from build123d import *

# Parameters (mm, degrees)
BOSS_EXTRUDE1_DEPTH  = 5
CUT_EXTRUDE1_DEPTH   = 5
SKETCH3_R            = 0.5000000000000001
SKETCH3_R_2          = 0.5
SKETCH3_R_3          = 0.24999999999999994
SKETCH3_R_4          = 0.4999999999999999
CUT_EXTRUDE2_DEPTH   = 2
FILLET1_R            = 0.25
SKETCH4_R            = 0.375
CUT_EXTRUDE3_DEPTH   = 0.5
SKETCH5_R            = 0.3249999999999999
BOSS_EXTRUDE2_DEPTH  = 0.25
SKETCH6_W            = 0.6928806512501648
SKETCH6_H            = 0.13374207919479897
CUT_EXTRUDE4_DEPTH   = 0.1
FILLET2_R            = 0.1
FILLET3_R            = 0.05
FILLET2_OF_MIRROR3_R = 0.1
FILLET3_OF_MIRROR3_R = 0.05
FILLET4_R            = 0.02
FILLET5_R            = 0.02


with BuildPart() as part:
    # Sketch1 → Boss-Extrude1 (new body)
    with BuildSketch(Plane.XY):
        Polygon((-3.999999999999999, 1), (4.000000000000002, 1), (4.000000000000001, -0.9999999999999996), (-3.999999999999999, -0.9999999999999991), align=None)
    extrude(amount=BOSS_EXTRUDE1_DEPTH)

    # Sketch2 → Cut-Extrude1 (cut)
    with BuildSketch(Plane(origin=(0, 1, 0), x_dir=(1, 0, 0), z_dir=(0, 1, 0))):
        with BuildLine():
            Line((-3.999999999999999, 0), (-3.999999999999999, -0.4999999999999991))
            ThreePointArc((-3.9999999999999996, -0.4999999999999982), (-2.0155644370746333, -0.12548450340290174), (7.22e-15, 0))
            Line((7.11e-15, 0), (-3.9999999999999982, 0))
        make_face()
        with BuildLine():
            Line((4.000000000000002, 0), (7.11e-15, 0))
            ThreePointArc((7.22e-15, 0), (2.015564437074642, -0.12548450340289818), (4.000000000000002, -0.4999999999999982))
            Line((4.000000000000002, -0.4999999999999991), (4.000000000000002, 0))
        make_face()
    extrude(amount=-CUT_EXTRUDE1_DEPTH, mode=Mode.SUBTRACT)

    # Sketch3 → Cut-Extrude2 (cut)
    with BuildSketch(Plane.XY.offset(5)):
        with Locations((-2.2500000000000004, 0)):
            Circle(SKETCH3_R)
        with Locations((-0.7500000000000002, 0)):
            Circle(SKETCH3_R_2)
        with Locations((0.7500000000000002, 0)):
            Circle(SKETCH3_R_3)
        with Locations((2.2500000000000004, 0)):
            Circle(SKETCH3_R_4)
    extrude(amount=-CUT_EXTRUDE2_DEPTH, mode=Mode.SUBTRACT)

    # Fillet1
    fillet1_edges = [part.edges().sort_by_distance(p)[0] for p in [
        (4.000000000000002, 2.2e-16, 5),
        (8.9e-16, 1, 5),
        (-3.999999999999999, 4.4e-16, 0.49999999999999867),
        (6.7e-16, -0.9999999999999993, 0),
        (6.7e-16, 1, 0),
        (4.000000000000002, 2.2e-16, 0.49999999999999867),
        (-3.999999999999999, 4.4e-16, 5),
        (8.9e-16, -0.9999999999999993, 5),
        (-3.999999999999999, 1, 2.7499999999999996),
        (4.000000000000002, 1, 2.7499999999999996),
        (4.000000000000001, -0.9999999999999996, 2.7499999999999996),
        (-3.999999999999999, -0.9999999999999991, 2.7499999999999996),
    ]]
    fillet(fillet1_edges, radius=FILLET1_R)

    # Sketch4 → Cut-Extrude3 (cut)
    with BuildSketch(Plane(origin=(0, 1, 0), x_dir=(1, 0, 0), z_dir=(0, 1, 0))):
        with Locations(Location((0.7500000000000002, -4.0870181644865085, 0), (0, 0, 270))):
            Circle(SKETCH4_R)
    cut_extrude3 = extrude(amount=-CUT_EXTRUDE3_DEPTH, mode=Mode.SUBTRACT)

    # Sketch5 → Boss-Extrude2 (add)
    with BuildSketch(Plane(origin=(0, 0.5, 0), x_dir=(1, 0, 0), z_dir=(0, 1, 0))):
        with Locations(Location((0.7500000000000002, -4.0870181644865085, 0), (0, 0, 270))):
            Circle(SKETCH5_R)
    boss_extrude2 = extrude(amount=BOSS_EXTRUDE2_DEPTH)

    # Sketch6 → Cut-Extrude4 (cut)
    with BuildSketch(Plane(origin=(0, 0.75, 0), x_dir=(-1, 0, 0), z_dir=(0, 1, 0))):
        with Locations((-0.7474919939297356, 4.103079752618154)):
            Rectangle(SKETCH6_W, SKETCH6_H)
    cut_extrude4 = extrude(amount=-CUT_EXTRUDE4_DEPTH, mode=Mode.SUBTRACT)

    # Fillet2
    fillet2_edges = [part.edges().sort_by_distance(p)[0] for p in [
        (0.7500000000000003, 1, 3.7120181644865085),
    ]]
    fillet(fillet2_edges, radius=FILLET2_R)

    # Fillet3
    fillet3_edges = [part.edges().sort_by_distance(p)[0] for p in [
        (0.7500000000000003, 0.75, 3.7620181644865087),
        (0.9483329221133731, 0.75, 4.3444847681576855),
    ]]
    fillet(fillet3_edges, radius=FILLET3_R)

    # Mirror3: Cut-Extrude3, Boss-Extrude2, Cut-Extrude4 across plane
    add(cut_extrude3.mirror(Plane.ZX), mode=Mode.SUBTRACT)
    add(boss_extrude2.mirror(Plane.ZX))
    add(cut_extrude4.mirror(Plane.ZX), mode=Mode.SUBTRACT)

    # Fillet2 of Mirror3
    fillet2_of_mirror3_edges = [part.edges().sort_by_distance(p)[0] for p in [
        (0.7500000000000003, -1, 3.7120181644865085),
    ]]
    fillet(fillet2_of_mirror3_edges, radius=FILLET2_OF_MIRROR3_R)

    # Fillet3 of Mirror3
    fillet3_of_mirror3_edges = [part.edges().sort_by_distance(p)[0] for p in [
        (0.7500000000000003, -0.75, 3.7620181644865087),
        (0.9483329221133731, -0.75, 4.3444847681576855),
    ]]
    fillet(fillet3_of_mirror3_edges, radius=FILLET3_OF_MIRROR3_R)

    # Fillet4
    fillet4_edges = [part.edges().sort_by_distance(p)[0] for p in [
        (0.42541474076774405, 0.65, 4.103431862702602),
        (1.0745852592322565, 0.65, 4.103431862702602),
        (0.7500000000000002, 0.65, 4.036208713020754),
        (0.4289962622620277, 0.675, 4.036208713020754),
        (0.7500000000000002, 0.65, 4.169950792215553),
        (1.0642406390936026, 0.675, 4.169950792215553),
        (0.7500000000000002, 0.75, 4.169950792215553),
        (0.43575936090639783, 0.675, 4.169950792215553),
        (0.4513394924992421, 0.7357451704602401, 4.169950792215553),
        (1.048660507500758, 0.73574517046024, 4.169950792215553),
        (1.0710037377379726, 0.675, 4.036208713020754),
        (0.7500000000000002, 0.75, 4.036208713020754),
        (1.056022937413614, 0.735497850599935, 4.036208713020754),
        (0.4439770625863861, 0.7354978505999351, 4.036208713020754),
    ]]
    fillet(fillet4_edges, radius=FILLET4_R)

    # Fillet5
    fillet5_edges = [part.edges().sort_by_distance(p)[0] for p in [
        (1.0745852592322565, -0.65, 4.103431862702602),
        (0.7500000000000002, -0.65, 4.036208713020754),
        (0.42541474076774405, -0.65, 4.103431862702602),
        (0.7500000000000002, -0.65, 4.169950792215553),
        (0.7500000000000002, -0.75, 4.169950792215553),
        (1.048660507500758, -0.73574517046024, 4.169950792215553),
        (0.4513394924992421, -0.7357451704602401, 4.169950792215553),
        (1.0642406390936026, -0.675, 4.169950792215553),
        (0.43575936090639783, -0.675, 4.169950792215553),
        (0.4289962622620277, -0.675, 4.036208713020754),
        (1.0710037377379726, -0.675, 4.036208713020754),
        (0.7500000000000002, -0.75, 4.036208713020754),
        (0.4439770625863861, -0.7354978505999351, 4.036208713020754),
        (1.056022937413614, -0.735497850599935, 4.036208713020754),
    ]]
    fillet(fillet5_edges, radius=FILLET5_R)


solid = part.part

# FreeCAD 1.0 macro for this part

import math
import FreeCAD as App
import Part
import Sketcher
from FreeCAD import Vector


def edges_at(feature, points):
    """Names of the edges that pass closest to the given points."""
    edges = feature.Shape.Edges
    near = lambda p: min(range(len(edges)), key=lambda i: edges[i].distToShape(Part.Vertex(*p))[0])
    return sorted({f"Edge{near(p) + 1}" for p in points})

doc = App.newDocument("Part")
body = doc.addObject("PartDesign::Body", "Body")

# Sketch on XY plane
sketch1 = body.newObject("Sketcher::SketchObject", "Sketch")
sketch1.AttachmentSupport = (doc.getObject("XY_Plane"), [""])
sketch1.MapMode = "FlatFace"
sketch1.addGeometry([
    Part.LineSegment(Vector(4, 1, 0), Vector(-4, 1, 0)),
    Part.LineSegment(Vector(-4, 1, 0), Vector(-4, -1, 0)),
    Part.LineSegment(Vector(-4, -1, 0), Vector(4, -1, 0)),
    Part.LineSegment(Vector(4, -1, 0), Vector(4, 1, 0)),
], False)
sketch1.addConstraint([
    Sketcher.Constraint("Coincident", 0, 2, 1, 1),
    Sketcher.Constraint("Coincident", 1, 2, 2, 1),
    Sketcher.Constraint("Coincident", 2, 2, 3, 1),
    Sketcher.Constraint("Coincident", 3, 2, 0, 1),
    Sketcher.Constraint("Horizontal", 0),
    Sketcher.Constraint("Vertical", 1),
    Sketcher.Constraint("Horizontal", 2),
    Sketcher.Constraint("Vertical", 3),
    Sketcher.Constraint("Symmetric", 0, 2, 2, 2, -1, 1),
    Sketcher.Constraint("DistanceX", 0, 2, 0, 1, 8.0),
    Sketcher.Constraint("DistanceY", 1, 2, 1, 1, 2.0),
])
pad1 = body.newObject("PartDesign::Pad", "Pad")
pad1.Profile = sketch1
pad1.Length = 5

# Sketch on XZ plane
sketch2 = body.newObject("Sketcher::SketchObject", "Sketch001")
sketch2.AttachmentSupport = (doc.getObject("XZ_Plane"), [""])
sketch2.MapMode = "FlatFace"
sketch2.AttachmentOffset = App.Placement(Vector(0, 0, -1), App.Rotation())
sketch2.addGeometry([
    Part.LineSegment(Vector(-4, 0, 0), Vector(-4, 0.5, 0)),  # 0
    Part.ArcOfCircle(Part.Circle(Vector(0, 16.2, 0), Vector(0, 0, 1), 16.2), math.radians(-104.25), math.radians(-90)),  # 1
    Part.LineSegment(Vector(0, 0, 0), Vector(-4, 0, 0)),  # 2
    Part.LineSegment(Vector(4, 0, 0), Vector(0, 0, 0)),  # 3
    Part.ArcOfCircle(Part.Circle(Vector(0, 16.2, 0), Vector(0, 0, 1), 16.2), math.radians(-90), math.radians(-75.75)),  # 4
    Part.LineSegment(Vector(4, 0.5, 0), Vector(4, 0, 0)),  # 5
], False)
sketch2.addConstraint([
    Sketcher.Constraint("Coincident", 0, 2, 1, 1),
    Sketcher.Constraint("Tangent", 1, 2, 2, 1),
    Sketcher.Constraint("Coincident", 2, 2, 0, 1),
    Sketcher.Constraint("Tangent", 3, 2, 4, 1),
    Sketcher.Constraint("Coincident", 4, 2, 5, 1),
    Sketcher.Constraint("Coincident", 5, 2, 3, 1),
    Sketcher.Constraint("Vertical", 0),
    Sketcher.Constraint("Horizontal", 2),
    Sketcher.Constraint("Horizontal", 3),
    Sketcher.Constraint("Vertical", 5),
    Sketcher.Constraint("Coincident", 1, 2, -1, 1),
    Sketcher.Constraint("Coincident", 3, 2, -1, 1),
    Sketcher.Constraint("Equal", 1, 4),
    Sketcher.Constraint("Horizontal", 0, 2, 4, 2),
    Sketcher.Constraint("DistanceX", 2, 2, 2, 1, 4.0),
    Sketcher.Constraint("Radius", 1, 16.25),
])
pocket1 = body.newObject("PartDesign::Pocket", "Pocket")
pocket1.Profile = sketch2
pocket1.Length = 5
pocket1.Reversed = True

# Sketch on XY plane
sketch3 = body.newObject("Sketcher::SketchObject", "Sketch002")
sketch3.AttachmentSupport = (doc.getObject("XY_Plane"), [""])
sketch3.MapMode = "FlatFace"
sketch3.AttachmentOffset = App.Placement(Vector(0, 0, 5), App.Rotation())
sketch3.addGeometry([
    Part.Circle(Vector(-2.25, 0, 0), Vector(0, 0, 1), 0.5),
    Part.Circle(Vector(-0.75, 0, 0), Vector(0, 0, 1), 0.5),
    Part.Circle(Vector(0.75, 0, 0), Vector(0, 0, 1), 0.25),
    Part.Circle(Vector(2.25, 0, 0), Vector(0, 0, 1), 0.5),
], False)
sketch3.addConstraint([
    Sketcher.Constraint("Equal", 0, 1),
    Sketcher.Constraint("Equal", 1, 3),
    Sketcher.Constraint("Symmetric", 1, 3, 2, 3, -1, 1),
    Sketcher.Constraint("Symmetric", 0, 3, 3, 3, -1, 1),
    Sketcher.Constraint("PointOnObject", 0, 3, -1),
    Sketcher.Constraint("PointOnObject", 1, 3, -1),
    Sketcher.Constraint("Diameter", 0, 1.0),
    Sketcher.Constraint("Diameter", 2, 0.5),
    Sketcher.Constraint("DistanceX", 0, 3, 2, 3, 3.0),
    Sketcher.Constraint("DistanceX", 0, 3, 1, 3, 1.5),
])
pocket2 = body.newObject("PartDesign::Pocket", "Pocket001")
pocket2.Profile = sketch3
pocket2.Length = 2
doc.recompute()

fillet = body.newObject("PartDesign::Fillet", "Fillet")
fillet.Base = (pocket2, edges_at(pocket2, [
    (4, 0, 5),
    (0, 1, 5),
    (-4, 0, 0.5),
    (0, -1, 0),
    (0, 1, 0),
    (4, 0, 0.5),
    (-4, 0, 5),
    (0, -1, 5),
    (-4, 1, 2.75),
    (4, 1, 2.75),
    (4, -1, 2.75),
    (-4, -1, 2.75),
]))
fillet.Radius = 0.25

# Sketch on XZ plane
sketch4 = body.newObject("Sketcher::SketchObject", "Sketch003")
sketch4.AttachmentSupport = (doc.getObject("XZ_Plane"), [""])
sketch4.MapMode = "FlatFace"
sketch4.AttachmentOffset = App.Placement(Vector(0, 0, -1), App.Rotation())
sketch4.addGeometry(Part.Circle(Vector(0.75, 4.09, 0), Vector(0, 0, 1), 0.38), False)
sketch4.addConstraint([
    Sketcher.Constraint("Diameter", 0, 0.75),
    Sketcher.Constraint("DistanceX", -1, 1, 0, 3, 0.75),
    Sketcher.Constraint("DistanceY", -1, 1, 0, 3, 4.087018),
])
pocket3 = body.newObject("PartDesign::Pocket", "Pocket002")
pocket3.Profile = sketch4
pocket3.Length = 0.5
pocket3.Reversed = True

# Sketch on XZ plane
sketch5 = body.newObject("Sketcher::SketchObject", "Sketch004")
sketch5.AttachmentSupport = (doc.getObject("XZ_Plane"), [""])
sketch5.MapMode = "FlatFace"
sketch5.AttachmentOffset = App.Placement(Vector(0, 0, -0.5), App.Rotation())
sketch5.addGeometry(Part.Circle(Vector(0.75, 4.09, 0), Vector(0, 0, 1), 0.33), False)
sketch5.addConstraint([
    Sketcher.Constraint("Diameter", 0, 0.65),
    Sketcher.Constraint("DistanceX", -1, 1, 0, 3, 0.75),
    Sketcher.Constraint("DistanceY", -1, 1, 0, 3, 4.087018),
])
pad2 = body.newObject("PartDesign::Pad", "Pad001")
pad2.Profile = sketch5
pad2.Length = 0.25
pad2.Reversed = True

# Sketch on XZ plane
sketch6 = body.newObject("Sketcher::SketchObject", "Sketch005")
sketch6.AttachmentSupport = (doc.getObject("XZ_Plane"), [""])
sketch6.MapMode = "FlatFace"
sketch6.AttachmentOffset = App.Placement(Vector(0, 0, -0.75), App.Rotation())
sketch6.addGeometry([
    Part.LineSegment(Vector(1.09, 4.17, 0), Vector(1.09, 4.04, 0)),
    Part.LineSegment(Vector(1.09, 4.04, 0), Vector(0.4, 4.04, 0)),
    Part.LineSegment(Vector(0.4, 4.04, 0), Vector(0.4, 4.17, 0)),
    Part.LineSegment(Vector(0.4, 4.17, 0), Vector(1.09, 4.17, 0)),
], False)
sketch6.addConstraint([
    Sketcher.Constraint("Coincident", 0, 2, 1, 1),
    Sketcher.Constraint("Coincident", 1, 2, 2, 1),
    Sketcher.Constraint("Coincident", 2, 2, 3, 1),
    Sketcher.Constraint("Coincident", 3, 2, 0, 1),
    Sketcher.Constraint("Vertical", 0),
    Sketcher.Constraint("Horizontal", 1),
    Sketcher.Constraint("Vertical", 2),
    Sketcher.Constraint("Horizontal", 3),
    Sketcher.Constraint("DistanceX", 1, 2, 1, 1, 0.692881),
    Sketcher.Constraint("DistanceY", 0, 2, 0, 1, 0.133742),
    Sketcher.Constraint("DistanceY", -1, 1, 0, 2, 4.036209),
    Sketcher.Constraint("DistanceX", -1, 1, 1, 2, 0.401052),
])
pocket4 = body.newObject("PartDesign::Pocket", "Pocket003")
pocket4.Profile = sketch6
pocket4.Length = 0.1
pocket4.Reversed = True
doc.recompute()

fillet2 = body.newObject("PartDesign::Fillet", "Fillet001")
fillet2.Base = (pocket4, edges_at(pocket4, [(0.75, 1, 3.712)]))
fillet2.Radius = 0.1
doc.recompute()

fillet3 = body.newObject("PartDesign::Fillet", "Fillet002")
fillet3.Base = (fillet2, edges_at(fillet2, [(0.75, 0.75, 3.762), (0.948, 0.75, 4.344)]))
fillet3.Radius = 0.05
doc.recompute()

mirrored = body.newObject("PartDesign::Mirrored", "Mirrored")
mirrored.Originals = [pocket3, pad2, pocket4]
mirrored.MirrorPlane = (doc.getObject("XZ_Plane"), [""])
body.Tip = mirrored
doc.recompute()

fillet4 = body.newObject("PartDesign::Fillet", "Fillet003")
fillet4.Base = (mirrored, edges_at(mirrored, [(0.75, -1, 3.712)]))
fillet4.Radius = 0.1
doc.recompute()

fillet5 = body.newObject("PartDesign::Fillet", "Fillet004")
fillet5.Base = (fillet4, edges_at(fillet4, [(0.75, -0.75, 3.762), (0.948, -0.75, 4.344)]))
fillet5.Radius = 0.05
doc.recompute()

fillet6 = body.newObject("PartDesign::Fillet", "Fillet005")
fillet6.Base = (fillet5, edges_at(fillet5, [
    (0.425, 0.65, 4.103),
    (1.075, 0.65, 4.103),
    (0.75, 0.65, 4.036),
    (0.429, 0.675, 4.036),
    (0.75, 0.65, 4.17),
    (1.064, 0.675, 4.17),
    (0.75, 0.75, 4.17),
    (0.436, 0.675, 4.17),
    (0.451, 0.736, 4.17),
    (1.049, 0.736, 4.17),
    (1.071, 0.675, 4.036),
    (0.75, 0.75, 4.036),
    (1.056, 0.735, 4.036),
    (0.444, 0.735, 4.036),
]))
fillet6.Radius = 0.02
doc.recompute()

fillet7 = body.newObject("PartDesign::Fillet", "Fillet006")
fillet7.Base = (fillet6, edges_at(fillet6, [
    (1.075, -0.65, 4.103),
    (0.75, -0.65, 4.036),
    (0.425, -0.65, 4.103),
    (0.75, -0.65, 4.17),
    (0.75, -0.75, 4.17),
    (1.049, -0.736, 4.17),
    (0.451, -0.736, 4.17),
    (1.064, -0.675, 4.17),
    (0.436, -0.675, 4.17),
    (0.429, -0.675, 4.036),
    (1.071, -0.675, 4.036),
    (0.75, -0.75, 4.036),
    (0.444, -0.735, 4.036),
    (1.056, -0.735, 4.036),
]))
fillet7.Radius = 0.02

doc.recompute()
